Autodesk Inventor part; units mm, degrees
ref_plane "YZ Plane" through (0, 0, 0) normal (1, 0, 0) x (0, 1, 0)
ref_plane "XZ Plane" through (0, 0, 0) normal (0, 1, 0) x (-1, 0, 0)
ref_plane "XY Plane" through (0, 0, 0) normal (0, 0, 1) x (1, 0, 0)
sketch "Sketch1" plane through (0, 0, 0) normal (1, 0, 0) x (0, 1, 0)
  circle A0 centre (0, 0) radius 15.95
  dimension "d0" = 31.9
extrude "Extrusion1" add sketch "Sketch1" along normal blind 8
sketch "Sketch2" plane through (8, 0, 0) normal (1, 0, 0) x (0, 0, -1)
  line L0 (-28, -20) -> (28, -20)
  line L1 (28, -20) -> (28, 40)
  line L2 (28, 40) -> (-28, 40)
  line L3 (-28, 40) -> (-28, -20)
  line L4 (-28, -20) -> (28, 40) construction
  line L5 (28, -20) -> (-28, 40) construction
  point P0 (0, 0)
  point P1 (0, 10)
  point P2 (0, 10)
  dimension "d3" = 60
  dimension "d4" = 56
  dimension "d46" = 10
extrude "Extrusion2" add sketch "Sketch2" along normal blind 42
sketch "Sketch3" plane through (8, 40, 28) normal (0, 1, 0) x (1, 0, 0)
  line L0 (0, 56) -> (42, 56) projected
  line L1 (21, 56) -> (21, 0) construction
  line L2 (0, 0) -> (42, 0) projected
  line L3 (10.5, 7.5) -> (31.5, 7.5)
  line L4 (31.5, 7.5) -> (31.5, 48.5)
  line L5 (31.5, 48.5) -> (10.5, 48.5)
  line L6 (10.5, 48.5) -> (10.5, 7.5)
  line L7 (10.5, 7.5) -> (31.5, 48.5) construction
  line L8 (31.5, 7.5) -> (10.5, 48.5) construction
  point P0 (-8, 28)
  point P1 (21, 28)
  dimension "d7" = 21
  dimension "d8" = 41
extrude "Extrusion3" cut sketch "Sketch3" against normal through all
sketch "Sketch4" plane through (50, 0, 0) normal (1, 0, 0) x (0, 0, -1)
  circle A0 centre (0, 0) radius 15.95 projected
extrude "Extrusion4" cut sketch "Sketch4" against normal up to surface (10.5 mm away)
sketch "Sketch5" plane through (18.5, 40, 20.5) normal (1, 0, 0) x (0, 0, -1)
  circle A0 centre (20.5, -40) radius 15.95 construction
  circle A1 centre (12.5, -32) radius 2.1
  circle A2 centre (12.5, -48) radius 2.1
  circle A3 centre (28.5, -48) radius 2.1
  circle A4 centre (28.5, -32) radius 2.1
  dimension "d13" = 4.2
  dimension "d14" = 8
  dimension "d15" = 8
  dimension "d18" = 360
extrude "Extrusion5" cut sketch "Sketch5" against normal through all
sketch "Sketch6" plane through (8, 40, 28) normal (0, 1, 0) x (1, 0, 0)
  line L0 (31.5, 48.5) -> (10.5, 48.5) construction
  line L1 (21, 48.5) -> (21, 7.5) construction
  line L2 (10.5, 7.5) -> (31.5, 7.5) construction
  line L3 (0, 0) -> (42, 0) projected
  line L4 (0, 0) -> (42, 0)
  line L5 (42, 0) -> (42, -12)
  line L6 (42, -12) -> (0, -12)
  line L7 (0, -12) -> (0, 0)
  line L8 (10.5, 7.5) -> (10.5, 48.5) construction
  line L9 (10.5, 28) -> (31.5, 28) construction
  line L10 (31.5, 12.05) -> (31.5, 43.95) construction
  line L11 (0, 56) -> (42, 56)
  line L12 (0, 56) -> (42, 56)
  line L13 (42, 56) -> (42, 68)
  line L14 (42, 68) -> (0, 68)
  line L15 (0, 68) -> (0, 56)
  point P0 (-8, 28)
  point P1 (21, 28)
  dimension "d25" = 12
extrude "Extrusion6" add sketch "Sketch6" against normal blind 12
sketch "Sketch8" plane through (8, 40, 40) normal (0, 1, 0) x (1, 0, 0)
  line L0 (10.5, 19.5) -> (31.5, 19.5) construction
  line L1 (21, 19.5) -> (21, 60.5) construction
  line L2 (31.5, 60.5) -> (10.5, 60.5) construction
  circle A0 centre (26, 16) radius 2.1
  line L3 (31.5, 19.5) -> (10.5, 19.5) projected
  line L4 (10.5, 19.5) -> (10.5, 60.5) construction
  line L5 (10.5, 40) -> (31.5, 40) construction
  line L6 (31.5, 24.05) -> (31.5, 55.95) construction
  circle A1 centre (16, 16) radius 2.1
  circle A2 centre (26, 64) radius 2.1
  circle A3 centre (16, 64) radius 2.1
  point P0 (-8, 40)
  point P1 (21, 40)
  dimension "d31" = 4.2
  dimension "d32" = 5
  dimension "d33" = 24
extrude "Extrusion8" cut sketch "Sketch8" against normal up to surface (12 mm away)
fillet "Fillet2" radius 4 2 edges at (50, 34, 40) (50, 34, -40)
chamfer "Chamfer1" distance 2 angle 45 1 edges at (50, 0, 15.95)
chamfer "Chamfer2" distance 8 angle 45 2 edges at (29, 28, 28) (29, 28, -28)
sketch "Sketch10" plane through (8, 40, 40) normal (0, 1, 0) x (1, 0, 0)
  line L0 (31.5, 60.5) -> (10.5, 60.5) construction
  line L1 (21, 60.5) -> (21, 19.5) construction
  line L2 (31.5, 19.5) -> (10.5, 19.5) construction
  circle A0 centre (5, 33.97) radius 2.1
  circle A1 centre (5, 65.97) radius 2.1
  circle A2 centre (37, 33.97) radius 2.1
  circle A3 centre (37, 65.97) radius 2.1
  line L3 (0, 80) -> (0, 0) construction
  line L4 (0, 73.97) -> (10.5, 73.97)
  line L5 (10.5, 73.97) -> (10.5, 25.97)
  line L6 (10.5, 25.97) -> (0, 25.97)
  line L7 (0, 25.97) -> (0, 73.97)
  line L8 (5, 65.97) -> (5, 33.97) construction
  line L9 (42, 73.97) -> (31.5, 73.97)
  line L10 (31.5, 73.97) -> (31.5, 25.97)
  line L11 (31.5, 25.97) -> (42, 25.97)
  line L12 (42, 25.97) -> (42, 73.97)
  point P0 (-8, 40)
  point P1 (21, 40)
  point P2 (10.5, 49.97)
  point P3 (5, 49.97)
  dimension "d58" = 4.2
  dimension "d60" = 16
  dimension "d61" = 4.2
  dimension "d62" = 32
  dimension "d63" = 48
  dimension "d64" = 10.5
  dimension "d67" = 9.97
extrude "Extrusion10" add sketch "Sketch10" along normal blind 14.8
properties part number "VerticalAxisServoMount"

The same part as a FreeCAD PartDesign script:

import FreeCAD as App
import Part
import Sketcher
from FreeCAD import Vector
Q = App.Units.Quantity


def edges_at(feature, points):
    """Names of the edges that pass closest to the given points."""
    edges = feature.Shape.Edges
    near = lambda p: min(range(len(edges)), key=lambda i: edges[i].distToShape(Part.Vertex(*p))[0])
    return sorted({f"Edge{near(p) + 1}" for p in points})

doc = App.newDocument("Part")
params = doc.addObject("Spreadsheet::Sheet", "Params")
for row, (alias, value) in enumerate([
    ("sketch1_diameter", "31.9 mm"),
    ("pad1_length", "8 mm"),
    ("sketch2_width", "60 mm"),
    ("sketch2_height", "56 mm"),
    ("pad2_length", "42 mm"),
    ("sketch3_width", "21 mm"),
    ("sketch3_height", "41 mm"),
    ("sketch4_diameter", "31.9 mm"),
    ("pocket2_length", "10.5 mm"),
    ("sketch5_diameter", "4.2 mm"),
    ("sketch6_height", "12 mm"),
    ("sketch6_width", "42 mm"),
    ("pad3_length", "12 mm"),
    ("sketch7_diameter", "4.2 mm"),
    ("pocket4_length", "12 mm"),
    ("fillet_radius", "4 mm"),
    ("chamfer_size", "2 mm"),
    ("chamfer2_size", "8 mm"),
    ("sketch8_diameter", "4.2 mm"),
    ("sketch8_height", "48 mm"),
    ("sketch8_width", "10.5 mm"),
    ("pad4_length", "14.8 mm"),
], start=1):
    params.set(f"A{row}", alias)
    params.set(f"B{row}", "=" + value)
    params.setAlias(f"B{row}", alias)

body = doc.addObject("PartDesign::Body", "Body")

# Sketch on YZ plane
sketch1 = doc.addObject("Sketcher::SketchObject", "Sketch")
body.addObject(sketch1)
sketch1.AttachmentSupport = (doc.YZ_Plane, [""])
sketch1.MapMode = "FlatFace"
sketch1.addGeometry(Part.Circle(Vector(0, 0, 0), Vector(0, 0, 1), 15.95), False)
sketch1.addConstraint([
    Sketcher.Constraint("Coincident", 0, 3, -1, 1),
    Sketcher.Constraint("Diameter", 0, Q("31.9 mm")),
])
sketch1.setExpression("Constraints[1]", "Params.sketch1_diameter")
pad1 = doc.addObject("PartDesign::Pad", "Pad")
body.addObject(pad1)
pad1.Profile = sketch1
pad1.setExpression("Length", "Params.pad1_length")

# Sketch on YZ plane
sketch2 = doc.addObject("Sketcher::SketchObject", "Sketch001")
body.addObject(sketch2)
sketch2.AttachmentSupport = (doc.YZ_Plane, [""])
sketch2.MapMode = "FlatFace"
sketch2.AttachmentOffset = App.Placement(Vector(0, 0, 8), App.Rotation())
sketch2.addGeometry([
    Part.LineSegment(Vector(40, 28, 0), Vector(-20, 28, 0)),
    Part.LineSegment(Vector(-20, 28, 0), Vector(-20, -28, 0)),
    Part.LineSegment(Vector(-20, -28, 0), Vector(40, -28, 0)),
    Part.LineSegment(Vector(40, -28, 0), Vector(40, 28, 0)),
], False)
sketch2.addConstraint([
    Sketcher.Constraint("Coincident", 0, 2, 1, 1),
    Sketcher.Constraint("Coincident", 1, 2, 2, 1),
    Sketcher.Constraint("Coincident", 2, 2, 3, 1),
    Sketcher.Constraint("Coincident", 3, 2, 0, 1),
    Sketcher.Constraint("Horizontal", 0),
    Sketcher.Constraint("Vertical", 1),
    Sketcher.Constraint("Horizontal", 2),
    Sketcher.Constraint("Vertical", 3),
    Sketcher.Constraint("DistanceX", 0, 2, 0, 1, Q("60 mm")),
    Sketcher.Constraint("DistanceY", 1, 2, 1, 1, Q("56 mm")),
    Sketcher.Constraint("DistanceX", 0, 2, -1, 1, Q("20 mm")),
    Sketcher.Constraint("DistanceY", -1, 1, 0, 2, Q("28 mm")),
])
sketch2.setExpression("Constraints[8]", "Params.sketch2_width")
sketch2.setExpression("Constraints[9]", "Params.sketch2_height")
pad2 = doc.addObject("PartDesign::Pad", "Pad001")
body.addObject(pad2)
pad2.Profile = sketch2
pad2.setExpression("Length", "Params.pad2_length")

# Sketch on XZ plane
sketch3 = doc.addObject("Sketcher::SketchObject", "Sketch002")
body.addObject(sketch3)
sketch3.AttachmentSupport = (doc.XZ_Plane, [""])
sketch3.MapMode = "FlatFace"
sketch3.AttachmentOffset = App.Placement(Vector(0, 0, -40), App.Rotation())
sketch3.addGeometry([
    Part.LineSegment(Vector(18.5, -20.5, 0), Vector(18.5, 20.5, 0)),
    Part.LineSegment(Vector(18.5, 20.5, 0), Vector(39.5, 20.5, 0)),
    Part.LineSegment(Vector(39.5, 20.5, 0), Vector(39.5, -20.5, 0)),
    Part.LineSegment(Vector(39.5, -20.5, 0), Vector(18.5, -20.5, 0)),
], False)
sketch3.addConstraint([
    Sketcher.Constraint("Coincident", 0, 2, 1, 1),
    Sketcher.Constraint("Coincident", 1, 2, 2, 1),
    Sketcher.Constraint("Coincident", 2, 2, 3, 1),
    Sketcher.Constraint("Coincident", 3, 2, 0, 1),
    Sketcher.Constraint("Vertical", 0),
    Sketcher.Constraint("Horizontal", 1),
    Sketcher.Constraint("Vertical", 2),
    Sketcher.Constraint("Horizontal", 3),
    Sketcher.Constraint("DistanceX", 1, 1, 1, 2, Q("21 mm")),
    Sketcher.Constraint("DistanceY", 0, 1, 0, 2, Q("41 mm")),
    Sketcher.Constraint("DistanceX", -1, 1, 0, 2, Q("18.5 mm")),
    Sketcher.Constraint("DistanceY", -1, 1, 0, 2, Q("20.5 mm")),
])
sketch3.setExpression("Constraints[8]", "Params.sketch3_width")
sketch3.setExpression("Constraints[9]", "Params.sketch3_height")
pocket1 = doc.addObject("PartDesign::Pocket", "Pocket")
body.addObject(pocket1)
pocket1.Profile = sketch3
pocket1.Type = "ThroughAll"
pocket1.Reversed = True

# Sketch on YZ plane
sketch4 = doc.addObject("Sketcher::SketchObject", "Sketch003")
body.addObject(sketch4)
sketch4.AttachmentSupport = (doc.YZ_Plane, [""])
sketch4.MapMode = "FlatFace"
sketch4.AttachmentOffset = App.Placement(Vector(0, 0, 50), App.Rotation())
sketch4.addGeometry(Part.Circle(Vector(0, 0, 0), Vector(0, 0, 1), 15.95), False)
sketch4.addConstraint([
    Sketcher.Constraint("Coincident", 0, 3, -1, 1),
    Sketcher.Constraint("Diameter", 0, Q("31.9 mm")),
])
sketch4.setExpression("Constraints[1]", "Params.sketch4_diameter")
pocket2 = doc.addObject("PartDesign::Pocket", "Pocket001")
body.addObject(pocket2)
pocket2.Profile = sketch4
pocket2.setExpression("Length", "Params.pocket2_length")

# Sketch on YZ plane
sketch5 = doc.addObject("Sketcher::SketchObject", "Sketch004")
body.addObject(sketch5)
sketch5.AttachmentSupport = (doc.YZ_Plane, [""])
sketch5.MapMode = "FlatFace"
sketch5.AttachmentOffset = App.Placement(Vector(0, 0, 18.5), App.Rotation())
sketch5.addGeometry([
    Part.Circle(Vector(8, 8, 0), Vector(0, 0, 1), 2.1),
    Part.Circle(Vector(-8, 8, 0), Vector(0, 0, 1), 2.1),
    Part.Circle(Vector(-8, -8, 0), Vector(0, 0, 1), 2.1),
    Part.Circle(Vector(8, -8, 0), Vector(0, 0, 1), 2.1),
], False)
sketch5.addConstraint([
    Sketcher.Constraint("Equal", 0, 1),
    Sketcher.Constraint("Equal", 1, 2),
    Sketcher.Constraint("Equal", 2, 3),
    Sketcher.Constraint("Symmetric", 0, 3, 2, 3, -1, 1),
    Sketcher.Constraint("Symmetric", 1, 3, 3, 3, -1, 1),
    Sketcher.Constraint("Symmetric", 0, 3, 1, 3, -2),
    Sketcher.Constraint("Diameter", 0, Q("4.2 mm")),
    Sketcher.Constraint("DistanceX", -1, 1, 0, 3, Q("8 mm")),
    Sketcher.Constraint("DistanceY", -1, 1, 0, 3, Q("8 mm")),
])
sketch5.setExpression("Constraints[6]", "Params.sketch5_diameter")
pocket3 = doc.addObject("PartDesign::Pocket", "Pocket002")
body.addObject(pocket3)
pocket3.Profile = sketch5
pocket3.Type = "ThroughAll"

# Sketch on XZ plane
sketch6 = doc.addObject("Sketcher::SketchObject", "Sketch005")
body.addObject(sketch6)
sketch6.AttachmentSupport = (doc.XZ_Plane, [""])
sketch6.MapMode = "FlatFace"
sketch6.AttachmentOffset = App.Placement(Vector(0, 0, -40), App.Rotation())
sketch6.addGeometry([
    Part.LineSegment(Vector(50, 28, 0), Vector(8, 28, 0)),  # 0
    Part.LineSegment(Vector(8, 28, 0), Vector(8, 40, 0)),  # 1
    Part.LineSegment(Vector(8, 40, 0), Vector(50, 40, 0)),  # 2
    Part.LineSegment(Vector(50, 40, 0), Vector(50, 28, 0)),  # 3
    Part.LineSegment(Vector(8, -40, 0), Vector(8, -28, 0)),  # 4
    Part.LineSegment(Vector(8, -28, 0), Vector(50, -28, 0)),  # 5
    Part.LineSegment(Vector(50, -28, 0), Vector(50, -40, 0)),  # 6
    Part.LineSegment(Vector(50, -40, 0), Vector(8, -40, 0)),  # 7
], False)
sketch6.addConstraint([
    Sketcher.Constraint("Coincident", 0, 2, 1, 1),
    Sketcher.Constraint("Coincident", 1, 2, 2, 1),
    Sketcher.Constraint("Coincident", 2, 2, 3, 1),
    Sketcher.Constraint("Coincident", 3, 2, 0, 1),
    Sketcher.Constraint("Coincident", 4, 2, 5, 1),
    Sketcher.Constraint("Coincident", 5, 2, 6, 1),
    Sketcher.Constraint("Coincident", 6, 2, 7, 1),
    Sketcher.Constraint("Coincident", 7, 2, 4, 1),
    Sketcher.Constraint("Horizontal", 0),
    Sketcher.Constraint("Vertical", 1),
    Sketcher.Constraint("Horizontal", 2),
    Sketcher.Constraint("Vertical", 3),
    Sketcher.Constraint("Vertical", 4),
    Sketcher.Constraint("Horizontal", 5),
    Sketcher.Constraint("Vertical", 6),
    Sketcher.Constraint("Horizontal", 7),
    Sketcher.Constraint("Symmetric", 0, 2, 4, 2, -1),
    Sketcher.Constraint("Symmetric", 2, 2, 6, 2, -1),
    Sketcher.Constraint("DistanceY", 1, 1, 1, 2, Q("12 mm")),
    Sketcher.Constraint("DistanceX", 0, 2, 0, 1, Q("42 mm")),
    Sketcher.Constraint("DistanceX", -1, 1, 0, 2, Q("8 mm")),
    Sketcher.Constraint("DistanceY", -1, 1, 0, 2, Q("28 mm")),
])
sketch6.setExpression("Constraints[18]", "Params.sketch6_height")
sketch6.setExpression("Constraints[19]", "Params.sketch6_width")
pad3 = doc.addObject("PartDesign::Pad", "Pad002")
body.addObject(pad3)
pad3.Profile = sketch6
pad3.setExpression("Length", "Params.pad3_length")

# Sketch on XZ plane
sketch7 = doc.addObject("Sketcher::SketchObject", "Sketch006")
body.addObject(sketch7)
sketch7.AttachmentSupport = (doc.XZ_Plane, [""])
sketch7.MapMode = "FlatFace"
sketch7.AttachmentOffset = App.Placement(Vector(0, 0, -40), App.Rotation())
sketch7.addGeometry([
    Part.Circle(Vector(34, 24, 0), Vector(0, 0, 1), 2.1),
    Part.Circle(Vector(24, 24, 0), Vector(0, 0, 1), 2.1),
    Part.Circle(Vector(34, -24, 0), Vector(0, 0, 1), 2.1),
    Part.Circle(Vector(24, -24, 0), Vector(0, 0, 1), 2.1),
], False)
sketch7.addConstraint([
    Sketcher.Constraint("Equal", 0, 1),
    Sketcher.Constraint("Equal", 1, 2),
    Sketcher.Constraint("Equal", 2, 3),
    Sketcher.Constraint("Symmetric", 0, 3, 2, 3, -1),
    Sketcher.Constraint("Symmetric", 1, 3, 3, 3, -1),
    Sketcher.Constraint("Horizontal", 0, 3, 1, 3),
    Sketcher.Constraint("Diameter", 0, Q("4.2 mm")),
    Sketcher.Constraint("DistanceY", -1, 1, 0, 3, Q("24 mm")),
    Sketcher.Constraint("DistanceX", -1, 1, 1, 3, Q("24 mm")),
    Sketcher.Constraint("DistanceX", -1, 1, 0, 3, Q("34 mm")),
])
sketch7.setExpression("Constraints[6]", "Params.sketch7_diameter")
pocket4 = doc.addObject("PartDesign::Pocket", "Pocket003")
body.addObject(pocket4)
pocket4.Profile = sketch7
pocket4.setExpression("Length", "Params.pocket4_length")
pocket4.Reversed = True
doc.recompute()

fillet = doc.addObject("PartDesign::Fillet", "Fillet")
body.addObject(fillet)
fillet.Base = (pocket4, edges_at(pocket4, [(50, 34, 40), (50, 34, -40)]))
fillet.setExpression("Radius", "Params.fillet_radius")
doc.recompute()

chamfer = doc.addObject("PartDesign::Chamfer", "Chamfer")
body.addObject(chamfer)
chamfer.Base = (fillet, edges_at(fillet, [(50, 0, 15.95)]))
chamfer.setExpression("Size", "Params.chamfer_size")
doc.recompute()

chamfer2 = doc.addObject("PartDesign::Chamfer", "Chamfer001")
body.addObject(chamfer2)
chamfer2.Base = (chamfer, edges_at(chamfer, [(29, 28, 28), (29, 28, -28)]))
chamfer2.setExpression("Size", "Params.chamfer2_size")

# Sketch on XZ plane
sketch8 = doc.addObject("Sketcher::SketchObject", "Sketch007")
body.addObject(sketch8)
sketch8.AttachmentSupport = (doc.XZ_Plane, [""])
sketch8.MapMode = "FlatFace"
sketch8.AttachmentOffset = App.Placement(Vector(0, 0, -40), App.Rotation())
sketch8.addGeometry([
    Part.LineSegment(Vector(18.5, -33.97, 0), Vector(8, -33.97, 0)),  # 0
    Part.LineSegment(Vector(8, -33.97, 0), Vector(8, 14.03, 0)),  # 1
    Part.LineSegment(Vector(8, 14.03, 0), Vector(18.5, 14.03, 0)),  # 2
    Part.LineSegment(Vector(18.5, 14.03, 0), Vector(18.5, -33.97, 0)),  # 3
    Part.Circle(Vector(13, 6.03, 0), Vector(0, 0, 1), 2.1),  # 4
    Part.Circle(Vector(13, -25.97, 0), Vector(0, 0, 1), 2.1),  # 5
    Part.LineSegment(Vector(50, 14.03, 0), Vector(50, -33.97, 0)),  # 6
    Part.LineSegment(Vector(50, -33.97, 0), Vector(39.5, -33.97, 0)),  # 7
    Part.LineSegment(Vector(39.5, -33.97, 0), Vector(39.5, 14.03, 0)),  # 8
    Part.LineSegment(Vector(39.5, 14.03, 0), Vector(50, 14.03, 0)),  # 9
    Part.Circle(Vector(45, 6.03, 0), Vector(0, 0, 1), 2.1),  # 10
    Part.Circle(Vector(45, -25.97, 0), Vector(0, 0, 1), 2.1),  # 11
], False)
sketch8.addConstraint([
    Sketcher.Constraint("Coincident", 0, 2, 1, 1),
    Sketcher.Constraint("Coincident", 1, 2, 2, 1),
    Sketcher.Constraint("Coincident", 2, 2, 3, 1),
    Sketcher.Constraint("Coincident", 3, 2, 0, 1),
    Sketcher.Constraint("Coincident", 6, 2, 7, 1),
    Sketcher.Constraint("Coincident", 7, 2, 8, 1),
    Sketcher.Constraint("Coincident", 8, 2, 9, 1),
    Sketcher.Constraint("Coincident", 9, 2, 6, 1),
    Sketcher.Constraint("Horizontal", 0),
    Sketcher.Constraint("Vertical", 1),
    Sketcher.Constraint("Horizontal", 2),
    Sketcher.Constraint("Vertical", 3),
    Sketcher.Constraint("Vertical", 6),
    Sketcher.Constraint("Horizontal", 7),
    Sketcher.Constraint("Vertical", 8),
    Sketcher.Constraint("Horizontal", 9),
    Sketcher.Constraint("Equal", 4, 5),
    Sketcher.Constraint("Equal", 5, 10),
    Sketcher.Constraint("Equal", 10, 11),
    Sketcher.Constraint("Horizontal", 4, 3, 10, 3),
    Sketcher.Constraint("Horizontal", 5, 3, 11, 3),
    Sketcher.Constraint("Horizontal", 3, 2, 6, 2),
    Sketcher.Constraint("Horizontal", 2, 2, 8, 2),
    Sketcher.Constraint("Vertical", 4, 3, 5, 3),
    Sketcher.Constraint("Vertical", 10, 3, 11, 3),
    Sketcher.Constraint("Equal", 2, 7),
    Sketcher.Constraint("Diameter", 4, Q("4.2 mm")),
    Sketcher.Constraint("DistanceY", 1, 1, 1, 2, Q("48 mm")),
    Sketcher.Constraint("DistanceX", 0, 2, 0, 1, Q("10.5 mm")),
    Sketcher.Constraint("DistanceY", 5, 3, 4, 3, Q("32 mm")),
    Sketcher.Constraint("DistanceX", 4, 3, 10, 3, Q("32 mm")),
    Sketcher.Constraint("DistanceX", -1, 1, 4, 3, Q("13 mm")),
    Sketcher.Constraint("DistanceX", -1, 1, 0, 2, Q("8 mm")),
    Sketcher.Constraint("DistanceX", -1, 1, 6, 2, Q("50 mm")),
    Sketcher.Constraint("DistanceY", 0, 2, 5, 3, Q("8 mm")),
    Sketcher.Constraint("DistanceY", -1, 1, 4, 3, Q("6.03 mm")),
])
sketch8.setExpression("Constraints[26]", "Params.sketch8_diameter")
sketch8.setExpression("Constraints[27]", "Params.sketch8_height")
sketch8.setExpression("Constraints[28]", "Params.sketch8_width")
pad4 = doc.addObject("PartDesign::Pad", "Pad003")
body.addObject(pad4)
pad4.Profile = sketch8
pad4.setExpression("Length", "Params.pad4_length")
pad4.Reversed = True

doc.recompute()
